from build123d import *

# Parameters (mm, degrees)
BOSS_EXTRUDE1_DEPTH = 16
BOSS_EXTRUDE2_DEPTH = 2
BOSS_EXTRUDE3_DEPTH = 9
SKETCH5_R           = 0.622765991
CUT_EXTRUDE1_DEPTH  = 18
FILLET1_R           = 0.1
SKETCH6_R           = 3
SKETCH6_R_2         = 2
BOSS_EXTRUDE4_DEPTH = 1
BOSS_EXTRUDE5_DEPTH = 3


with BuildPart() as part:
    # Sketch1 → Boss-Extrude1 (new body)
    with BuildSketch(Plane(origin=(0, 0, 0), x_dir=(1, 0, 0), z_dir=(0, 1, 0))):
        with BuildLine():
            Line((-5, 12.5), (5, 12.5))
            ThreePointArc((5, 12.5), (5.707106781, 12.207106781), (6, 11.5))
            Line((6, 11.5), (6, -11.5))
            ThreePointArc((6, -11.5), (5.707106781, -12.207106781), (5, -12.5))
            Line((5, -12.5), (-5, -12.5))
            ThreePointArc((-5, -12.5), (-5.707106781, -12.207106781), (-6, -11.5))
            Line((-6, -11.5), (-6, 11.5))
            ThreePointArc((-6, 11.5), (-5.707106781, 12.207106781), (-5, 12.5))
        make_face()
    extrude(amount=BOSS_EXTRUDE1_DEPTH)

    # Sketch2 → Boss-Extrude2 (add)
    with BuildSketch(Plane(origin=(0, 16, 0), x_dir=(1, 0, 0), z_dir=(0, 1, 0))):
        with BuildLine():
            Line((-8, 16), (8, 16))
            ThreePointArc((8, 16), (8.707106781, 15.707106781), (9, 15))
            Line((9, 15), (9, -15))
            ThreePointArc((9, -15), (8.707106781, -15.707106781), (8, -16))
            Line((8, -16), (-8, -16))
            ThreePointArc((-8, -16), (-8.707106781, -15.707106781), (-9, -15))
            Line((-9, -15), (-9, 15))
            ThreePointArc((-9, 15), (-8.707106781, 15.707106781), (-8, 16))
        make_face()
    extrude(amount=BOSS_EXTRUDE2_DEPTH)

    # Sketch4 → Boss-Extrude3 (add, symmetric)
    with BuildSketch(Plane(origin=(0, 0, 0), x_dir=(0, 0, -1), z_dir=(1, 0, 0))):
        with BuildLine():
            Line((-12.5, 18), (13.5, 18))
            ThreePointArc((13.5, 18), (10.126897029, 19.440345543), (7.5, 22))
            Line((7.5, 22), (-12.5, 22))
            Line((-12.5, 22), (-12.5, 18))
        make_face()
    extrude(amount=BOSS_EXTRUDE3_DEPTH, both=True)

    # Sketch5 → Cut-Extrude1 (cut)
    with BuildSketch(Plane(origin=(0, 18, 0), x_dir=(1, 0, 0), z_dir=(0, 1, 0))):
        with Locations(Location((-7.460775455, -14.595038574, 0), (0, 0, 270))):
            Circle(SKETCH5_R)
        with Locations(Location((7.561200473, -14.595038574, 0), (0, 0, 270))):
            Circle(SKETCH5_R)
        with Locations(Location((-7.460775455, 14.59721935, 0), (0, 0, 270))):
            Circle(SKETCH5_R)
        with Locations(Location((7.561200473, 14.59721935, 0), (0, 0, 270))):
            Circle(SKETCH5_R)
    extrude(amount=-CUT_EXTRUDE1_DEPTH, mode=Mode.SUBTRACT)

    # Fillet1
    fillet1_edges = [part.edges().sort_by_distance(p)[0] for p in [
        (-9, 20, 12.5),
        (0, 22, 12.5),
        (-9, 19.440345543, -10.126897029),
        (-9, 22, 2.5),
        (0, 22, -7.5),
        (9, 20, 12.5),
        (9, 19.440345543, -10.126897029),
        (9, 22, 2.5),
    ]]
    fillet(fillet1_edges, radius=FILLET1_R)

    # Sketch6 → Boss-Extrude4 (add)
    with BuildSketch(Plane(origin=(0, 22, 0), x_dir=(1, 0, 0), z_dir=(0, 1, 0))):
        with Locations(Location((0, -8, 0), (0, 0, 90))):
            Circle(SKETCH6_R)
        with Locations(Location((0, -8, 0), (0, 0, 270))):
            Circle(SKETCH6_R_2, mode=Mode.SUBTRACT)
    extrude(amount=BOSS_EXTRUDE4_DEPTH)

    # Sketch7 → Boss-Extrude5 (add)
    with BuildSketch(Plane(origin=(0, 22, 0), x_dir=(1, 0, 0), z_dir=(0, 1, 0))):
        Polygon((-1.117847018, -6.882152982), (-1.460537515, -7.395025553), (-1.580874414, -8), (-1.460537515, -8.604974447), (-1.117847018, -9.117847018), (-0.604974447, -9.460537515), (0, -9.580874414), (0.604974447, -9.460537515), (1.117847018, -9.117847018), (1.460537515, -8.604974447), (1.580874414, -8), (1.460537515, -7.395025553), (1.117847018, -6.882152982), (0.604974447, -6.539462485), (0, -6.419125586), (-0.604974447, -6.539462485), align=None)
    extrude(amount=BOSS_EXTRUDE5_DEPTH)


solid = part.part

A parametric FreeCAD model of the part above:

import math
import FreeCAD as App
import Part
import Sketcher
from FreeCAD import Vector
Q = App.Units.Quantity


def edges_at(feature, points):
    """Names of the edges that pass closest to the given points."""
    edges = feature.Shape.Edges
    near = lambda p: min(range(len(edges)), key=lambda i: edges[i].distToShape(Part.Vertex(*p))[0])
    return sorted({f"Edge{near(p) + 1}" for p in points})


def add_polygon(sketch, points):
    """Adds a closed chain of lines whose ends are joined by coincident constraints."""
    first, n = sketch.GeometryCount, len(points)
    for a, b in zip(points, points[1:] + points[:1]):
        sketch.addGeometry(Part.LineSegment(App.Vector(*a, 0), App.Vector(*b, 0)), False)
    for i in range(n):
        sketch.addConstraint(Sketcher.Constraint("Coincident", first + i, 2, first + (i + 1) % n, 1))

doc = App.newDocument("Part")
body = doc.addObject("PartDesign::Body", "Body")

# Sketch on XZ plane
sketch1 = body.newObject("Sketcher::SketchObject", "Sketch")
sketch1.AttachmentSupport = (doc.getObject("XZ_Plane"), [""])
sketch1.MapMode = "FlatFace"
sketch1.addGeometry([
    Part.LineSegment(Vector(5, -12.5, 0), Vector(-5, -12.5, 0)),  # 0
    Part.ArcOfCircle(Part.Circle(Vector(-5, -11.5, 0), Vector(0, 0, 1), 1), math.radians(-180), math.radians(-90)),  # 1
    Part.LineSegment(Vector(-6, -11.5, 0), Vector(-6, 11.5, 0)),  # 2
    Part.ArcOfCircle(Part.Circle(Vector(-5, 11.5, 0), Vector(0, 0, 1), 1), math.radians(90), math.radians(180)),  # 3
    Part.LineSegment(Vector(-5, 12.5, 0), Vector(5, 12.5, 0)),  # 4
    Part.ArcOfCircle(Part.Circle(Vector(5, 11.5, 0), Vector(0, 0, 1), 1), math.radians(0), math.radians(90)),  # 5
    Part.LineSegment(Vector(6, 11.5, 0), Vector(6, -11.5, 0)),  # 6
    Part.ArcOfCircle(Part.Circle(Vector(5, -11.5, 0), Vector(0, 0, 1), 1), math.radians(-90), math.radians(0)),  # 7
], False)
sketch1.addConstraint([
    Sketcher.Constraint("Tangent", 0, 2, 1, 2),
    Sketcher.Constraint("Tangent", 1, 1, 2, 1),
    Sketcher.Constraint("Tangent", 2, 2, 3, 2),
    Sketcher.Constraint("Tangent", 3, 1, 4, 1),
    Sketcher.Constraint("Tangent", 4, 2, 5, 2),
    Sketcher.Constraint("Tangent", 5, 1, 6, 1),
    Sketcher.Constraint("Tangent", 6, 2, 7, 2),
    Sketcher.Constraint("Tangent", 7, 1, 0, 1),
    Sketcher.Constraint("Horizontal", 0),
    Sketcher.Constraint("Vertical", 2),
    Sketcher.Constraint("Horizontal", 4),
    Sketcher.Constraint("Vertical", 6),
    Sketcher.Constraint("Equal", 1, 3),
    Sketcher.Constraint("Equal", 3, 5),
    Sketcher.Constraint("Equal", 5, 7),
    Sketcher.Constraint("Symmetric", 1, 3, 5, 3, -1, 1),
    Sketcher.Constraint("Radius", 1, 1.0),
    Sketcher.Constraint("DistanceX", 0, 2, 0, 1, 10.0),
    Sketcher.Constraint("DistanceY", 2, 1, 2, 2, 23.0),
])
pad1 = body.newObject("PartDesign::Pad", "Pad")
pad1.Profile = sketch1
pad1.Length = 16
pad1.Reversed = True

# Sketch on XZ plane
sketch2 = body.newObject("Sketcher::SketchObject", "Sketch001")
sketch2.AttachmentSupport = (doc.getObject("XZ_Plane"), [""])
sketch2.MapMode = "FlatFace"
sketch2.AttachmentOffset = App.Placement(Vector(0, 0, -16), App.Rotation())
sketch2.addGeometry([
    Part.LineSegment(Vector(8, -16, 0), Vector(-8, -16, 0)),  # 0
    Part.ArcOfCircle(Part.Circle(Vector(-8, -15, 0), Vector(0, 0, 1), 1), math.radians(-180), math.radians(-90)),  # 1
    Part.LineSegment(Vector(-9, -15, 0), Vector(-9, 15, 0)),  # 2
    Part.ArcOfCircle(Part.Circle(Vector(-8, 15, 0), Vector(0, 0, 1), 1), math.radians(90), math.radians(180)),  # 3
    Part.LineSegment(Vector(-8, 16, 0), Vector(8, 16, 0)),  # 4
    Part.ArcOfCircle(Part.Circle(Vector(8, 15, 0), Vector(0, 0, 1), 1), math.radians(0), math.radians(90)),  # 5
    Part.LineSegment(Vector(9, 15, 0), Vector(9, -15, 0)),  # 6
    Part.ArcOfCircle(Part.Circle(Vector(8, -15, 0), Vector(0, 0, 1), 1), math.radians(-90), math.radians(0)),  # 7
], False)
sketch2.addConstraint([
    Sketcher.Constraint("Tangent", 0, 2, 1, 2),
    Sketcher.Constraint("Tangent", 1, 1, 2, 1),
    Sketcher.Constraint("Tangent", 2, 2, 3, 2),
    Sketcher.Constraint("Tangent", 3, 1, 4, 1),
    Sketcher.Constraint("Tangent", 4, 2, 5, 2),
    Sketcher.Constraint("Tangent", 5, 1, 6, 1),
    Sketcher.Constraint("Tangent", 6, 2, 7, 2),
    Sketcher.Constraint("Tangent", 7, 1, 0, 1),
    Sketcher.Constraint("Horizontal", 0),
    Sketcher.Constraint("Vertical", 2),
    Sketcher.Constraint("Horizontal", 4),
    Sketcher.Constraint("Vertical", 6),
    Sketcher.Constraint("Equal", 1, 3),
    Sketcher.Constraint("Equal", 3, 5),
    Sketcher.Constraint("Equal", 5, 7),
    Sketcher.Constraint("Symmetric", 1, 3, 5, 3, -1, 1),
    Sketcher.Constraint("Radius", 1, 1.0),
    Sketcher.Constraint("DistanceX", 0, 2, 0, 1, 16.0),
    Sketcher.Constraint("DistanceY", 2, 1, 2, 2, 30.0),
])
pad2 = body.newObject("PartDesign::Pad", "Pad001")
pad2.Profile = sketch2
pad2.Length = 2
pad2.Reversed = True

# Sketch on YZ plane
sketch3 = body.newObject("Sketcher::SketchObject", "Sketch002")
sketch3.AttachmentSupport = (doc.getObject("YZ_Plane"), [""])
sketch3.MapMode = "FlatFace"
sketch3.addGeometry([
    Part.LineSegment(Vector(18, 12.5, 0), Vector(18, -13.5, 0)),
    Part.ArcOfCircle(Part.Circle(Vector(27.8, -15.7, 0), Vector(0, 0, 1), 10), math.radians(125), math.radians(167)),
    Part.LineSegment(Vector(22, -7.5, 0), Vector(22, 12.5, 0)),
    Part.LineSegment(Vector(22, 12.5, 0), Vector(18, 12.5, 0)),
], False)
sketch3.addConstraint([
    Sketcher.Constraint("Coincident", 0, 2, 1, 2),
    Sketcher.Constraint("Coincident", 1, 1, 2, 1),
    Sketcher.Constraint("Coincident", 2, 2, 3, 1),
    Sketcher.Constraint("Coincident", 3, 2, 0, 1),
    Sketcher.Constraint("Vertical", 0),
    Sketcher.Constraint("Vertical", 2),
    Sketcher.Constraint("Horizontal", 3),
    Sketcher.Constraint("Radius", 1, 10.0),
    Sketcher.Constraint("DistanceX", 3, 2, 3, 1, 4.0),
    Sketcher.Constraint("DistanceY", 0, 2, 0, 1, 26.0),
    Sketcher.Constraint("DistanceY", 2, 1, 2, 2, 20.0),
    Sketcher.Constraint("DistanceX", -1, 1, 0, 2, 18.0),
    Sketcher.Constraint("DistanceY", 0, 2, -1, 1, 13.5),
])
pad3 = body.newObject("PartDesign::Pad", "Pad002")
pad3.Profile = sketch3
pad3.Length = 18
pad3.Midplane = True

# Sketch on XZ plane
sketch4 = body.newObject("Sketcher::SketchObject", "Sketch003")
sketch4.AttachmentSupport = (doc.getObject("XZ_Plane"), [""])
sketch4.MapMode = "FlatFace"
sketch4.AttachmentOffset = App.Placement(Vector(0, 0, -18), App.Rotation())
sketch4.addGeometry([
    Part.Circle(Vector(-7.5, 14.6, 0), Vector(0, 0, 1), 0.6),
    Part.Circle(Vector(7.6, 14.6, 0), Vector(0, 0, 1), 0.6),
    Part.Circle(Vector(-7.5, -14.6, 0), Vector(0, 0, 1), 0.6),
    Part.Circle(Vector(7.6, -14.6, 0), Vector(0, 0, 1), 0.6),
], False)
sketch4.addConstraint([
    Sketcher.Constraint("Equal", 0, 1),
    Sketcher.Constraint("Equal", 1, 2),
    Sketcher.Constraint("Equal", 2, 3),
    Sketcher.Constraint("Horizontal", 0, 3, 1, 3),
    Sketcher.Constraint("Horizontal", 2, 3, 3, 3),
    Sketcher.Constraint("Vertical", 0, 3, 2, 3),
    Sketcher.Constraint("Vertical", 1, 3, 3, 3),
    Sketcher.Constraint("Diameter", 0, 1.245532),
    Sketcher.Constraint("DistanceX", -1, 1, 1, 3, 7.5612),
    Sketcher.Constraint("DistanceY", -1, 1, 0, 3, 14.595039),
    Sketcher.Constraint("DistanceY", 2, 3, -1, 1, 14.597219),
    Sketcher.Constraint("DistanceX", 0, 3, -1, 1, 7.460775),
])
pocket1 = body.newObject("PartDesign::Pocket", "Pocket")
pocket1.Profile = sketch4
pocket1.Length = 18
pocket1.Reversed = True
doc.recompute()

fillet = body.newObject("PartDesign::Fillet", "Fillet")
fillet.Base = (pocket1, edges_at(pocket1, [
    (-9, 20, 12.5),
    (0, 22, 12.5),
    (-9, 19.44, -10.127),
    (-9, 22, 2.5),
    (0, 22, -7.5),
    (9, 20, 12.5),
    (9, 19.44, -10.127),
    (9, 22, 2.5),
]))
fillet.Radius = 0.1

# Sketch on XZ plane
sketch5 = body.newObject("Sketcher::SketchObject", "Sketch004")
sketch5.AttachmentSupport = (doc.getObject("XZ_Plane"), [""])
sketch5.MapMode = "FlatFace"
sketch5.AttachmentOffset = App.Placement(Vector(0, 0, -22), App.Rotation())
sketch5.addGeometry([
    Part.Circle(Vector(0, 8, 0), Vector(0, 0, 1), 3),
    Part.Circle(Vector(0, 8, 0), Vector(0, 0, 1), 2),
], False)
sketch5.addConstraint([
    Sketcher.Constraint("Coincident", 1, 3, 0, 3),
    Sketcher.Constraint("PointOnObject", 0, 3, -2),
    Sketcher.Constraint("Diameter", 0, 6.0),
    Sketcher.Constraint("Diameter", 1, 4.0),
    Sketcher.Constraint("DistanceY", -1, 1, 0, 3, 8.0),
])
pad4 = body.newObject("PartDesign::Pad", "Pad003")
pad4.Profile = sketch5
pad4.Length = 1
pad4.Reversed = True

# Sketch on XZ plane
sketch6 = body.newObject("Sketcher::SketchObject", "Sketch005")
sketch6.AttachmentSupport = (doc.getObject("XZ_Plane"), [""])
sketch6.MapMode = "FlatFace"
sketch6.AttachmentOffset = App.Placement(Vector(0, 0, -22), App.Rotation())
add_polygon(sketch6, [(-1.1, 6.9), (-1.5, 7.4), (-1.6, 8), (-1.5, 8.6), (-1.1, 9.1), (-0.6, 9.5), (0, 9.6), (0.6, 9.5), (1.1, 9.1), (1.5, 8.6), (1.6, 8), (1.5, 7.4), (1.1, 6.9), (0.6, 6.5), (0, 6.4), (-0.6, 6.5)])  # lines 0-15
sketch6.addConstraint([
    Sketcher.Constraint("Symmetric", 4, 2, 6, 2, -2),
    Sketcher.Constraint("Symmetric", 3, 2, 7, 2, -2),
    Sketcher.Constraint("Symmetric", 2, 2, 8, 2, -2),
    Sketcher.Constraint("Symmetric", 1, 2, 9, 2, -2),
    Sketcher.Constraint("Symmetric", 0, 2, 10, 2, -2),
    Sketcher.Constraint("Symmetric", 12, 2, 14, 2, -2),
    Sketcher.Constraint("Symmetric", 11, 2, 15, 2, -2),
    Sketcher.Constraint("PointOnObject", 5, 2, -2),
    Sketcher.Constraint("PointOnObject", 13, 2, -2),
    Sketcher.Constraint("Perpendicular", 0, 4),
    Sketcher.Constraint("Perpendicular", 1, 5),
    Sketcher.Constraint("Perpendicular", 2, 6),
    Sketcher.Constraint("Perpendicular", 3, 7),
    Sketcher.Constraint("Perpendicular", 8, 12),
    Sketcher.Constraint("Perpendicular", 9, 13),
    Sketcher.Constraint("Vertical", 0, 2, 2, 2),
    Sketcher.Constraint("Vertical", 7, 2, 11, 2),
    Sketcher.Constraint("Vertical", 6, 2, 12, 2),
    Sketcher.Constraint("Equal", 0, 1),
    Sketcher.Constraint("Equal", 3, 4),
    Sketcher.Constraint("Equal", 4, 5),
    Sketcher.Constraint("DistanceY", -1, 1, 1, 2, 8.0),
    Sketcher.Constraint("Angle", 0, Q("123.75 deg")),
    Sketcher.Constraint("Angle", 1, Q("101.25 deg")),
    Sketcher.Constraint("DistanceX", 1, 2, 4, 2, 0.9759),
])
pad5 = body.newObject("PartDesign::Pad", "Pad004")
pad5.Profile = sketch6
pad5.Length = 3
pad5.Reversed = True

doc.recompute()
